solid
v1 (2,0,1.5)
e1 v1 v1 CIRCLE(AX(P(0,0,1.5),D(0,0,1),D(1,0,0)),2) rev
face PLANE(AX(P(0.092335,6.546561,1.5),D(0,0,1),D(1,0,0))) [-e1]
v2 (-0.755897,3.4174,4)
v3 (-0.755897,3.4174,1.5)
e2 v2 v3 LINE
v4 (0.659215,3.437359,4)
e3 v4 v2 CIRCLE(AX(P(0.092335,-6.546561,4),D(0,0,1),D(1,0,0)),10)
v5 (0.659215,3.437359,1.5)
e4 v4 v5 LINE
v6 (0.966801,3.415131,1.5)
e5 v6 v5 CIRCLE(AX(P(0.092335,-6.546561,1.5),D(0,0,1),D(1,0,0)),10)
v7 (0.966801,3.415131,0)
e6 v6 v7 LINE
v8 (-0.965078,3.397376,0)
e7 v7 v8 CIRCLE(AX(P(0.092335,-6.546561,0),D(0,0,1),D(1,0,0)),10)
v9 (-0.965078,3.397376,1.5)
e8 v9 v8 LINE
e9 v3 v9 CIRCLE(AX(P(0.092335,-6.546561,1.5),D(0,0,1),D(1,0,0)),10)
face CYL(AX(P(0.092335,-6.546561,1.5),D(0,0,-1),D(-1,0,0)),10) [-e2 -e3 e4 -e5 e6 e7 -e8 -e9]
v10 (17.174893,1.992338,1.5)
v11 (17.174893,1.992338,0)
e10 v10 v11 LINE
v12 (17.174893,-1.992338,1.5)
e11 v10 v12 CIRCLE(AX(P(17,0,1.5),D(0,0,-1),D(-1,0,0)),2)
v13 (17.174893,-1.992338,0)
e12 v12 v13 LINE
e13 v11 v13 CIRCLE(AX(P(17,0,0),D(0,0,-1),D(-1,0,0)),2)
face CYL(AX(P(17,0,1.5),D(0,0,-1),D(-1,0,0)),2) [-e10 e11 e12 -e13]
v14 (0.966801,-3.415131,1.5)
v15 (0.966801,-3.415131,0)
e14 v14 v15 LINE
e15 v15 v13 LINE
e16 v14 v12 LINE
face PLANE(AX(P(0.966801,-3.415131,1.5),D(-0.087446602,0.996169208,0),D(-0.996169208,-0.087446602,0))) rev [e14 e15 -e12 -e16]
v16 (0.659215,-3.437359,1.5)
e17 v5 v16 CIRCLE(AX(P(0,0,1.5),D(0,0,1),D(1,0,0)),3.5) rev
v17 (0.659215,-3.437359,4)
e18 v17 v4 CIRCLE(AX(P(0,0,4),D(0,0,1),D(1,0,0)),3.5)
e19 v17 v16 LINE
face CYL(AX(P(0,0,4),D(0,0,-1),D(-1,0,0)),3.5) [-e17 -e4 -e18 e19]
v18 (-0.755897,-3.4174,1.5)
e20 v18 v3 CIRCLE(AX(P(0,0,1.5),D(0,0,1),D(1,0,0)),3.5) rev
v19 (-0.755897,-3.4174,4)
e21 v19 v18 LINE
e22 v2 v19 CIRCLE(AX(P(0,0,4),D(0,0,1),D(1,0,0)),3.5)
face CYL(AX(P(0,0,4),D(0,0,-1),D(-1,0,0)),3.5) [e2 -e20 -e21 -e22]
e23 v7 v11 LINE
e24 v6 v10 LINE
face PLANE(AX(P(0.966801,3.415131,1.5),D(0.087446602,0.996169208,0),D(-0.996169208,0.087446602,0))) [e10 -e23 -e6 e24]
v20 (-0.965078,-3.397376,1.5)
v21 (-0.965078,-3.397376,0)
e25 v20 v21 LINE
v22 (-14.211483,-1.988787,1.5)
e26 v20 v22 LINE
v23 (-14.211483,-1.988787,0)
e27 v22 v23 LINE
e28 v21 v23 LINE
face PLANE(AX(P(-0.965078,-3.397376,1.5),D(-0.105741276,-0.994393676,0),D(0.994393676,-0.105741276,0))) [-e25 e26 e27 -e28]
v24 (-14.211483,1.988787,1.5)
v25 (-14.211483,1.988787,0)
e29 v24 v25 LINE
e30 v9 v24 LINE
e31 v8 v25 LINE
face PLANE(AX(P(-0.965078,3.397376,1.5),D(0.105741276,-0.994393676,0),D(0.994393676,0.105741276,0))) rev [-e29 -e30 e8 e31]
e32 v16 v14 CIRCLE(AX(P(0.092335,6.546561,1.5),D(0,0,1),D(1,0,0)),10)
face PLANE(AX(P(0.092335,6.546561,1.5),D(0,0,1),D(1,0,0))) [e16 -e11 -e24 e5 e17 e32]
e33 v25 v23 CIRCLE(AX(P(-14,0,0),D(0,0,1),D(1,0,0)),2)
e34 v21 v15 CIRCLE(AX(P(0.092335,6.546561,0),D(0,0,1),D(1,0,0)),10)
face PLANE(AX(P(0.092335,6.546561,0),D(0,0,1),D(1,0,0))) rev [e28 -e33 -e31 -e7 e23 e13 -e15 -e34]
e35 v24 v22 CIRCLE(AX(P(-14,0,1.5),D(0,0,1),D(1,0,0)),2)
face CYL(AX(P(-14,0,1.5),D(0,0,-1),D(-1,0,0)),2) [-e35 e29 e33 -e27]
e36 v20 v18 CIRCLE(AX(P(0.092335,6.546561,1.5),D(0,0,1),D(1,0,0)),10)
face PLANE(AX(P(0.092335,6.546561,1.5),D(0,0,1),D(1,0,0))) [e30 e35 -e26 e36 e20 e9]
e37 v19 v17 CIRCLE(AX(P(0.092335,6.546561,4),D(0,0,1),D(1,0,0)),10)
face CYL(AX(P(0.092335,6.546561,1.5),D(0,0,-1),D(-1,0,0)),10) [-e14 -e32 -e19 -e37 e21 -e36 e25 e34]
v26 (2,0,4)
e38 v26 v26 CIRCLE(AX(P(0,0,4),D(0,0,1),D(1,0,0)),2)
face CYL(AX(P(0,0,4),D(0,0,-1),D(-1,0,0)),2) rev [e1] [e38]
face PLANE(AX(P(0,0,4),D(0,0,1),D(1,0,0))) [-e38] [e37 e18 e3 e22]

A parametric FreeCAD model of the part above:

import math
import FreeCAD as App
import Part
import Sketcher
Q = App.Units.Quantity

doc = App.newDocument("Part")
body = doc.addObject("PartDesign::Body", "Body")

# Sketch on XY plane
sketch1 = body.newObject("Sketcher::SketchObject", "Sketch")
sketch1.AttachmentSupport = (doc.getObject("XY_Plane"), [""])
sketch1.MapMode = "FlatFace"
sketch1.addGeometry(Part.LineSegment(App.Vector(-1, 3.4, 0), App.Vector(-14.2, 2, 0)), False)
sketch1.addGeometry(Part.ArcOfCircle(Part.Circle(App.Vector(-14, 0, 0), App.Vector(0, 0, 1), 2), math.radians(96), math.radians(264)), False)
sketch1.addGeometry(Part.LineSegment(App.Vector(-14.2, -2, 0), App.Vector(-1, -3.4, 0)), False)
sketch1.addGeometry(Part.ArcOfCircle(Part.Circle(App.Vector(0.1, 6.5, 0), App.Vector(0, 0, 1), 10), math.radians(-96.07), math.radians(-84.98)), False)
sketch1.addGeometry(Part.LineSegment(App.Vector(1, -3.4, 0), App.Vector(17.2, -2, 0)), False)
sketch1.addGeometry(Part.ArcOfCircle(Part.Circle(App.Vector(17, 0, 0), App.Vector(0, 0, 1), 2), math.radians(-85), math.radians(85)), False)
sketch1.addGeometry(Part.LineSegment(App.Vector(17.2, 2, 0), App.Vector(1, 3.4, 0)), False)
sketch1.addGeometry(Part.ArcOfCircle(Part.Circle(App.Vector(0.1, -6.5, 0), App.Vector(0, 0, 1), 10), math.radians(84.98), math.radians(96.07)), False)
sketch1.addConstraint(Sketcher.Constraint("Tangent", 0, 2, 1, 1))
sketch1.addConstraint(Sketcher.Constraint("Tangent", 1, 2, 2, 1))
sketch1.addConstraint(Sketcher.Constraint("Tangent", 2, 2, 3, 1))
sketch1.addConstraint(Sketcher.Constraint("Tangent", 3, 2, 4, 1))
sketch1.addConstraint(Sketcher.Constraint("Tangent", 4, 2, 5, 1))
sketch1.addConstraint(Sketcher.Constraint("Tangent", 5, 2, 6, 1))
sketch1.addConstraint(Sketcher.Constraint("Tangent", 6, 2, 7, 1))
sketch1.addConstraint(Sketcher.Constraint("Tangent", 7, 2, 0, 1))
sketch1.addConstraint(Sketcher.Constraint("Equal", 1, 5))
sketch1.addConstraint(Sketcher.Constraint("Equal", 3, 7))
sketch1.addConstraint(Sketcher.Constraint("Symmetric", 3, 3, 7, 3, -1))
sketch1.addConstraint(Sketcher.Constraint("PointOnObject", 1, 3, -1))
sketch1.addConstraint(Sketcher.Constraint("PointOnObject", 5, 3, -1))
sketch1.addConstraint(Sketcher.Constraint("Radius", 1, Q("2 mm")))
sketch1.addConstraint(Sketcher.Constraint("Radius", 3, Q("10 mm")))
sketch1.addConstraint(Sketcher.Constraint("DistanceX", 1, 3, -1, 1, Q("14 mm")))
sketch1.addConstraint(Sketcher.Constraint("DistanceX", -1, 1, 5, 3, Q("17 mm")))
sketch1.addConstraint(Sketcher.Constraint("DistanceX", -1, 1, 3, 2, Q("0.966801 mm")))
sketch1.addConstraint(Sketcher.Constraint("DistanceY", 4, 2, 3, 3, Q("8.538899 mm")))
pad1 = body.newObject("PartDesign::Pad", "Pad")
pad1.Profile = sketch1
pad1.Length = 1.5

# Sketch on XY plane
sketch2 = body.newObject("Sketcher::SketchObject", "Sketch001")
sketch2.AttachmentSupport = (doc.getObject("XY_Plane"), [""])
sketch2.MapMode = "FlatFace"
sketch2.addGeometry(Part.ArcOfCircle(Part.Circle(App.Vector(0.1, -6.5, 0), App.Vector(0, 0, 1), 10), math.radians(86.75), math.radians(94.87)), False)
sketch2.addGeometry(Part.ArcOfCircle(Part.Circle(App.Vector(0, 0, 0), App.Vector(0, 0, 1), 3.5), math.radians(102), math.radians(258)), False)
sketch2.addGeometry(Part.ArcOfCircle(Part.Circle(App.Vector(0.1, 6.5, 0), App.Vector(0, 0, 1), 10), math.radians(-94.87), math.radians(-86.75)), False)
sketch2.addGeometry(Part.ArcOfCircle(Part.Circle(App.Vector(0, 0, 0), App.Vector(0, 0, 1), 3.5), math.radians(-79), math.radians(0)), False)
sketch2.addGeometry(Part.ArcOfCircle(Part.Circle(App.Vector(0, 0, 0), App.Vector(0, 0, 1), 3.5), math.radians(0), math.radians(79)), False)
sketch2.addGeometry(Part.Circle(App.Vector(0, 0, 0), App.Vector(0, 0, 1), 2), False)
sketch2.addConstraint(Sketcher.Constraint("Coincident", 0, 2, 1, 1))
sketch2.addConstraint(Sketcher.Constraint("Coincident", 1, 2, 2, 1))
sketch2.addConstraint(Sketcher.Constraint("Coincident", 2, 2, 3, 1))
sketch2.addConstraint(Sketcher.Constraint("Tangent", 3, 2, 4, 1))
sketch2.addConstraint(Sketcher.Constraint("Coincident", 4, 2, 0, 1))
sketch2.addConstraint(Sketcher.Constraint("Coincident", 1, 3, -1, 1))
sketch2.addConstraint(Sketcher.Constraint("Coincident", 3, 3, -1, 1))
sketch2.addConstraint(Sketcher.Constraint("Coincident", 5, 3, -1, 1))
sketch2.addConstraint(Sketcher.Constraint("Equal", 0, 2))
sketch2.addConstraint(Sketcher.Constraint("Equal", 1, 3))
sketch2.addConstraint(Sketcher.Constraint("Equal", 3, 4))
sketch2.addConstraint(Sketcher.Constraint("Symmetric", 0, 3, 2, 3, -1))
sketch2.addConstraint(Sketcher.Constraint("PointOnObject", 3, 2, -1))
sketch2.addConstraint(Sketcher.Constraint("Diameter", 5, Q("4 mm")))
sketch2.addConstraint(Sketcher.Constraint("Radius", 0, Q("10 mm")))
sketch2.addConstraint(Sketcher.Constraint("Radius", 1, Q("3.5 mm")))
sketch2.addConstraint(Sketcher.Constraint("DistanceY", -1, 1, 0, 2, Q("3.4174 mm")))
sketch2.addConstraint(Sketcher.Constraint("DistanceY", 0, 3, 2, 2, Q("3.109202 mm")))
pad2 = body.newObject("PartDesign::Pad", "Pad001")
pad2.Profile = sketch2
pad2.Length = 4

doc.recompute()
